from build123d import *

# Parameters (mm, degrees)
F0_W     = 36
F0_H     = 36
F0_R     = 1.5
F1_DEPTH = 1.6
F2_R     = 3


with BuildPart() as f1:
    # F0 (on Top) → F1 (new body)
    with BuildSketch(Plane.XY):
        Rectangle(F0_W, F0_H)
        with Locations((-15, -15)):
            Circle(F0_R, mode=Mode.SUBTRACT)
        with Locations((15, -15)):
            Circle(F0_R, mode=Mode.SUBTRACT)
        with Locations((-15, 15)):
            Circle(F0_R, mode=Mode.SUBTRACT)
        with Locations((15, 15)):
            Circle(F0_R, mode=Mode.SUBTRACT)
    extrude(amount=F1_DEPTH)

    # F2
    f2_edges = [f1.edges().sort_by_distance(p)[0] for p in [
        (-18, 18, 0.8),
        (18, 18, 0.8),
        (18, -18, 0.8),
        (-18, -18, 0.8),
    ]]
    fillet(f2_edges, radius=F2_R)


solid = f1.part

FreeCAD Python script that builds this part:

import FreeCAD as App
import Part
import Sketcher


def edges_at(feature, points):
    """Names of the edges that pass closest to the given points."""
    edges = feature.Shape.Edges
    near = lambda p: min(range(len(edges)), key=lambda i: edges[i].distToShape(Part.Vertex(*p))[0])
    return sorted({f"Edge{near(p) + 1}" for p in points})

doc = App.newDocument("Part")
body = doc.addObject("PartDesign::Body", "Body")

sketch1 = doc.addObject("Sketcher::SketchObject", "Sketch")
body.addObject(sketch1)
sketch1.AttachmentSupport = (doc.XY_Plane, [""])
sketch1.MapMode = "FlatFace"
sketch1.addGeometry([
    Part.LineSegment(App.Vector(-18, 18, 0), App.Vector(-18, -18, 0)),
    Part.LineSegment(App.Vector(-18, -18, 0), App.Vector(18, -18, 0)),
    Part.LineSegment(App.Vector(18, -18, 0), App.Vector(18, 18, 0)),
    Part.LineSegment(App.Vector(18, 18, 0), App.Vector(-18, 18, 0)),
    Part.Circle(App.Vector(-15, -15, 0), App.Vector(0, 0, 1), 1.5),
    Part.Circle(App.Vector(15, -15, 0), App.Vector(0, 0, 1), 1.5),
    Part.Circle(App.Vector(-15, 15, 0), App.Vector(0, 0, 1), 1.5),
    Part.Circle(App.Vector(15, 15, 0), App.Vector(0, 0, 1), 1.5),
], False)
sketch1.addConstraint([
    Sketcher.Constraint("Coincident", 0, 2, 1, 1),
    Sketcher.Constraint("Coincident", 1, 2, 2, 1),
    Sketcher.Constraint("Coincident", 2, 2, 3, 1),
    Sketcher.Constraint("Coincident", 3, 2, 0, 1),
    Sketcher.Constraint("Vertical", 0),
    Sketcher.Constraint("Horizontal", 1),
    Sketcher.Constraint("Vertical", 2),
    Sketcher.Constraint("Horizontal", 3),
    Sketcher.Constraint("Equal", 4, 5),
    Sketcher.Constraint("Equal", 5, 6),
    Sketcher.Constraint("Equal", 6, 7),
    Sketcher.Constraint("Symmetric", 5, 3, 6, 3, -1, 1),
    Sketcher.Constraint("Symmetric", 4, 3, 7, 3, -1, 1),
    Sketcher.Constraint("Symmetric", 0, 2, 2, 2, -1, 1),
    Sketcher.Constraint("Symmetric", 4, 3, 5, 3, -2),
    Sketcher.Constraint("Equal", 3, 0),
    Sketcher.Constraint("Diameter", 4, 3.0),
    Sketcher.Constraint("DistanceX", 1, 1, 1, 2, 36.0),
    Sketcher.Constraint("DistanceX", 4, 3, -1, 1, 15.0),
    Sketcher.Constraint("DistanceY", 4, 3, -1, 1, 15.0),
])
pad1 = doc.addObject("PartDesign::Pad", "Pad")
body.addObject(pad1)
pad1.Profile = sketch1
pad1.Length = 1.6
doc.recompute()

fillet = doc.addObject("PartDesign::Fillet", "Fillet")
body.addObject(fillet)
fillet.Base = (pad1, edges_at(pad1, [
    (-18, 18, 0.8),
    (18, 18, 0.8),
    (18, -18, 0.8),
    (-18, -18, 0.8),
]))
fillet.Radius = 3

doc.recompute()
